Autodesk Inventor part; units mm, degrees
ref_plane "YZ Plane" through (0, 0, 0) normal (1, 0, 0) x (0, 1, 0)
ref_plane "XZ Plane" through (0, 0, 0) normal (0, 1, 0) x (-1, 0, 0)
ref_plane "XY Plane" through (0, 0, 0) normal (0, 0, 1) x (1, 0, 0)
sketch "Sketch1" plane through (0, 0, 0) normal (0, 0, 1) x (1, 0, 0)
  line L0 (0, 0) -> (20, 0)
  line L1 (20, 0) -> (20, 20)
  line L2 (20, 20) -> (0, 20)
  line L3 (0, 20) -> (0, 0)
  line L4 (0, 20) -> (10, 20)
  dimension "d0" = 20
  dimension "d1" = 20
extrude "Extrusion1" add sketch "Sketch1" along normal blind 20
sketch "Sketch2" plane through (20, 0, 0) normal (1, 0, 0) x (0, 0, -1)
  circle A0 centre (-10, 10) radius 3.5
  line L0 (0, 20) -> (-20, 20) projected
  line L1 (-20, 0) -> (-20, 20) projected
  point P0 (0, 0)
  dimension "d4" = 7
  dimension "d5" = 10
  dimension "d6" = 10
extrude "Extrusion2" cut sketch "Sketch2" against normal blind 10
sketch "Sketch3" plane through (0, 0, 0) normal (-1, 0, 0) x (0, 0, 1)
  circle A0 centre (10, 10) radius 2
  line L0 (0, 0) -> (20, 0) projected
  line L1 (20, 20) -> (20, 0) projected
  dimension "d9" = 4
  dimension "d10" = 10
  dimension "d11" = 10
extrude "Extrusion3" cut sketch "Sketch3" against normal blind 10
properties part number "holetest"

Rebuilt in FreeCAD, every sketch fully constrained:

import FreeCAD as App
import Part
import Sketcher

V = App.Vector
Q = App.Units.Quantity


def add_polygon(sketch, points):
    """Adds a closed chain of lines whose ends are joined by coincident constraints."""
    first, n = sketch.GeometryCount, len(points)
    for a, b in zip(points, points[1:] + points[:1]):
        sketch.addGeometry(Part.LineSegment(App.Vector(*a, 0), App.Vector(*b, 0)), False)
    for i in range(n):
        sketch.addConstraint(Sketcher.Constraint("Coincident", first + i, 2, first + (i + 1) % n, 1))

doc = App.newDocument("Part")
params = doc.addObject("Spreadsheet::Sheet", "Params")
for row, (alias, value) in enumerate([
    ("sketch1_width", "20 mm"),
    ("pad1_length", "20 mm"),
    ("sketch2_diameter", "7 mm"),
    ("pocket1_length", "10 mm"),
    ("sketch3_diameter", "4 mm"),
    ("pocket2_length", "10 mm"),
], start=1):
    params.set(f"A{row}", alias)
    params.set(f"B{row}", "=" + value)
    params.setAlias(f"B{row}", alias)

body = doc.addObject("PartDesign::Body", "Body")

sketch1 = body.newObject("Sketcher::SketchObject", "Sketch")
sketch1.AttachmentSupport = (doc.getObject("XY_Plane"), [""])
sketch1.MapMode = "FlatFace"
add_polygon(sketch1, [(0, 20), (0, 0), (20, 0), (20, 20)])
sketch1.addConstraint([
    Sketcher.Constraint("Vertical", 0),
    Sketcher.Constraint("Horizontal", 1),
    Sketcher.Constraint("Vertical", 2),
    Sketcher.Constraint("Horizontal", 3),
    Sketcher.Constraint("Coincident", 0, 2, -1, 1),
    Sketcher.Constraint("Equal", 3, 0),
    Sketcher.Constraint("DistanceX", 1, 1, 1, 2, Q("20 mm")),
])
sketch1.setExpression("Constraints[10]", "Params.sketch1_width")
pad1 = body.newObject("PartDesign::Pad", "Pad")
pad1.Profile = sketch1
pad1.setExpression("Length", "Params.pad1_length")

sketch2 = body.newObject("Sketcher::SketchObject", "Sketch001")
sketch2.AttachmentSupport = (doc.getObject("YZ_Plane"), [""])
sketch2.MapMode = "FlatFace"
sketch2.AttachmentOffset = App.Placement(V(0, 0, 20), App.Rotation())
sketch2.addGeometry(Part.Circle(V(10, 10, 0), V(0, 0, 1), 3.5), False)
sketch2.addConstraint([
    Sketcher.Constraint("Diameter", 0, Q("7 mm")),
    Sketcher.Constraint("DistanceX", -1, 1, 0, 3, Q("10 mm")),
    Sketcher.Constraint("DistanceY", -1, 1, 0, 3, Q("10 mm")),
])
sketch2.setExpression("Constraints[0]", "Params.sketch2_diameter")
pocket1 = body.newObject("PartDesign::Pocket", "Pocket")
pocket1.Profile = sketch2
pocket1.setExpression("Length", "Params.pocket1_length")

sketch3 = body.newObject("Sketcher::SketchObject", "Sketch002")
sketch3.AttachmentSupport = (doc.getObject("YZ_Plane"), [""])
sketch3.MapMode = "FlatFace"
sketch3.addGeometry(Part.Circle(V(10, 10, 0), V(0, 0, 1), 2), False)
sketch3.addConstraint([
    Sketcher.Constraint("Diameter", 0, Q("4 mm")),
    Sketcher.Constraint("DistanceX", -1, 1, 0, 3, Q("10 mm")),
    Sketcher.Constraint("DistanceY", -1, 1, 0, 3, Q("10 mm")),
])
sketch3.setExpression("Constraints[0]", "Params.sketch3_diameter")
pocket2 = body.newObject("PartDesign::Pocket", "Pocket001")
pocket2.Profile = sketch3
pocket2.setExpression("Length", "Params.pocket2_length")
pocket2.Reversed = True

doc.recompute()
